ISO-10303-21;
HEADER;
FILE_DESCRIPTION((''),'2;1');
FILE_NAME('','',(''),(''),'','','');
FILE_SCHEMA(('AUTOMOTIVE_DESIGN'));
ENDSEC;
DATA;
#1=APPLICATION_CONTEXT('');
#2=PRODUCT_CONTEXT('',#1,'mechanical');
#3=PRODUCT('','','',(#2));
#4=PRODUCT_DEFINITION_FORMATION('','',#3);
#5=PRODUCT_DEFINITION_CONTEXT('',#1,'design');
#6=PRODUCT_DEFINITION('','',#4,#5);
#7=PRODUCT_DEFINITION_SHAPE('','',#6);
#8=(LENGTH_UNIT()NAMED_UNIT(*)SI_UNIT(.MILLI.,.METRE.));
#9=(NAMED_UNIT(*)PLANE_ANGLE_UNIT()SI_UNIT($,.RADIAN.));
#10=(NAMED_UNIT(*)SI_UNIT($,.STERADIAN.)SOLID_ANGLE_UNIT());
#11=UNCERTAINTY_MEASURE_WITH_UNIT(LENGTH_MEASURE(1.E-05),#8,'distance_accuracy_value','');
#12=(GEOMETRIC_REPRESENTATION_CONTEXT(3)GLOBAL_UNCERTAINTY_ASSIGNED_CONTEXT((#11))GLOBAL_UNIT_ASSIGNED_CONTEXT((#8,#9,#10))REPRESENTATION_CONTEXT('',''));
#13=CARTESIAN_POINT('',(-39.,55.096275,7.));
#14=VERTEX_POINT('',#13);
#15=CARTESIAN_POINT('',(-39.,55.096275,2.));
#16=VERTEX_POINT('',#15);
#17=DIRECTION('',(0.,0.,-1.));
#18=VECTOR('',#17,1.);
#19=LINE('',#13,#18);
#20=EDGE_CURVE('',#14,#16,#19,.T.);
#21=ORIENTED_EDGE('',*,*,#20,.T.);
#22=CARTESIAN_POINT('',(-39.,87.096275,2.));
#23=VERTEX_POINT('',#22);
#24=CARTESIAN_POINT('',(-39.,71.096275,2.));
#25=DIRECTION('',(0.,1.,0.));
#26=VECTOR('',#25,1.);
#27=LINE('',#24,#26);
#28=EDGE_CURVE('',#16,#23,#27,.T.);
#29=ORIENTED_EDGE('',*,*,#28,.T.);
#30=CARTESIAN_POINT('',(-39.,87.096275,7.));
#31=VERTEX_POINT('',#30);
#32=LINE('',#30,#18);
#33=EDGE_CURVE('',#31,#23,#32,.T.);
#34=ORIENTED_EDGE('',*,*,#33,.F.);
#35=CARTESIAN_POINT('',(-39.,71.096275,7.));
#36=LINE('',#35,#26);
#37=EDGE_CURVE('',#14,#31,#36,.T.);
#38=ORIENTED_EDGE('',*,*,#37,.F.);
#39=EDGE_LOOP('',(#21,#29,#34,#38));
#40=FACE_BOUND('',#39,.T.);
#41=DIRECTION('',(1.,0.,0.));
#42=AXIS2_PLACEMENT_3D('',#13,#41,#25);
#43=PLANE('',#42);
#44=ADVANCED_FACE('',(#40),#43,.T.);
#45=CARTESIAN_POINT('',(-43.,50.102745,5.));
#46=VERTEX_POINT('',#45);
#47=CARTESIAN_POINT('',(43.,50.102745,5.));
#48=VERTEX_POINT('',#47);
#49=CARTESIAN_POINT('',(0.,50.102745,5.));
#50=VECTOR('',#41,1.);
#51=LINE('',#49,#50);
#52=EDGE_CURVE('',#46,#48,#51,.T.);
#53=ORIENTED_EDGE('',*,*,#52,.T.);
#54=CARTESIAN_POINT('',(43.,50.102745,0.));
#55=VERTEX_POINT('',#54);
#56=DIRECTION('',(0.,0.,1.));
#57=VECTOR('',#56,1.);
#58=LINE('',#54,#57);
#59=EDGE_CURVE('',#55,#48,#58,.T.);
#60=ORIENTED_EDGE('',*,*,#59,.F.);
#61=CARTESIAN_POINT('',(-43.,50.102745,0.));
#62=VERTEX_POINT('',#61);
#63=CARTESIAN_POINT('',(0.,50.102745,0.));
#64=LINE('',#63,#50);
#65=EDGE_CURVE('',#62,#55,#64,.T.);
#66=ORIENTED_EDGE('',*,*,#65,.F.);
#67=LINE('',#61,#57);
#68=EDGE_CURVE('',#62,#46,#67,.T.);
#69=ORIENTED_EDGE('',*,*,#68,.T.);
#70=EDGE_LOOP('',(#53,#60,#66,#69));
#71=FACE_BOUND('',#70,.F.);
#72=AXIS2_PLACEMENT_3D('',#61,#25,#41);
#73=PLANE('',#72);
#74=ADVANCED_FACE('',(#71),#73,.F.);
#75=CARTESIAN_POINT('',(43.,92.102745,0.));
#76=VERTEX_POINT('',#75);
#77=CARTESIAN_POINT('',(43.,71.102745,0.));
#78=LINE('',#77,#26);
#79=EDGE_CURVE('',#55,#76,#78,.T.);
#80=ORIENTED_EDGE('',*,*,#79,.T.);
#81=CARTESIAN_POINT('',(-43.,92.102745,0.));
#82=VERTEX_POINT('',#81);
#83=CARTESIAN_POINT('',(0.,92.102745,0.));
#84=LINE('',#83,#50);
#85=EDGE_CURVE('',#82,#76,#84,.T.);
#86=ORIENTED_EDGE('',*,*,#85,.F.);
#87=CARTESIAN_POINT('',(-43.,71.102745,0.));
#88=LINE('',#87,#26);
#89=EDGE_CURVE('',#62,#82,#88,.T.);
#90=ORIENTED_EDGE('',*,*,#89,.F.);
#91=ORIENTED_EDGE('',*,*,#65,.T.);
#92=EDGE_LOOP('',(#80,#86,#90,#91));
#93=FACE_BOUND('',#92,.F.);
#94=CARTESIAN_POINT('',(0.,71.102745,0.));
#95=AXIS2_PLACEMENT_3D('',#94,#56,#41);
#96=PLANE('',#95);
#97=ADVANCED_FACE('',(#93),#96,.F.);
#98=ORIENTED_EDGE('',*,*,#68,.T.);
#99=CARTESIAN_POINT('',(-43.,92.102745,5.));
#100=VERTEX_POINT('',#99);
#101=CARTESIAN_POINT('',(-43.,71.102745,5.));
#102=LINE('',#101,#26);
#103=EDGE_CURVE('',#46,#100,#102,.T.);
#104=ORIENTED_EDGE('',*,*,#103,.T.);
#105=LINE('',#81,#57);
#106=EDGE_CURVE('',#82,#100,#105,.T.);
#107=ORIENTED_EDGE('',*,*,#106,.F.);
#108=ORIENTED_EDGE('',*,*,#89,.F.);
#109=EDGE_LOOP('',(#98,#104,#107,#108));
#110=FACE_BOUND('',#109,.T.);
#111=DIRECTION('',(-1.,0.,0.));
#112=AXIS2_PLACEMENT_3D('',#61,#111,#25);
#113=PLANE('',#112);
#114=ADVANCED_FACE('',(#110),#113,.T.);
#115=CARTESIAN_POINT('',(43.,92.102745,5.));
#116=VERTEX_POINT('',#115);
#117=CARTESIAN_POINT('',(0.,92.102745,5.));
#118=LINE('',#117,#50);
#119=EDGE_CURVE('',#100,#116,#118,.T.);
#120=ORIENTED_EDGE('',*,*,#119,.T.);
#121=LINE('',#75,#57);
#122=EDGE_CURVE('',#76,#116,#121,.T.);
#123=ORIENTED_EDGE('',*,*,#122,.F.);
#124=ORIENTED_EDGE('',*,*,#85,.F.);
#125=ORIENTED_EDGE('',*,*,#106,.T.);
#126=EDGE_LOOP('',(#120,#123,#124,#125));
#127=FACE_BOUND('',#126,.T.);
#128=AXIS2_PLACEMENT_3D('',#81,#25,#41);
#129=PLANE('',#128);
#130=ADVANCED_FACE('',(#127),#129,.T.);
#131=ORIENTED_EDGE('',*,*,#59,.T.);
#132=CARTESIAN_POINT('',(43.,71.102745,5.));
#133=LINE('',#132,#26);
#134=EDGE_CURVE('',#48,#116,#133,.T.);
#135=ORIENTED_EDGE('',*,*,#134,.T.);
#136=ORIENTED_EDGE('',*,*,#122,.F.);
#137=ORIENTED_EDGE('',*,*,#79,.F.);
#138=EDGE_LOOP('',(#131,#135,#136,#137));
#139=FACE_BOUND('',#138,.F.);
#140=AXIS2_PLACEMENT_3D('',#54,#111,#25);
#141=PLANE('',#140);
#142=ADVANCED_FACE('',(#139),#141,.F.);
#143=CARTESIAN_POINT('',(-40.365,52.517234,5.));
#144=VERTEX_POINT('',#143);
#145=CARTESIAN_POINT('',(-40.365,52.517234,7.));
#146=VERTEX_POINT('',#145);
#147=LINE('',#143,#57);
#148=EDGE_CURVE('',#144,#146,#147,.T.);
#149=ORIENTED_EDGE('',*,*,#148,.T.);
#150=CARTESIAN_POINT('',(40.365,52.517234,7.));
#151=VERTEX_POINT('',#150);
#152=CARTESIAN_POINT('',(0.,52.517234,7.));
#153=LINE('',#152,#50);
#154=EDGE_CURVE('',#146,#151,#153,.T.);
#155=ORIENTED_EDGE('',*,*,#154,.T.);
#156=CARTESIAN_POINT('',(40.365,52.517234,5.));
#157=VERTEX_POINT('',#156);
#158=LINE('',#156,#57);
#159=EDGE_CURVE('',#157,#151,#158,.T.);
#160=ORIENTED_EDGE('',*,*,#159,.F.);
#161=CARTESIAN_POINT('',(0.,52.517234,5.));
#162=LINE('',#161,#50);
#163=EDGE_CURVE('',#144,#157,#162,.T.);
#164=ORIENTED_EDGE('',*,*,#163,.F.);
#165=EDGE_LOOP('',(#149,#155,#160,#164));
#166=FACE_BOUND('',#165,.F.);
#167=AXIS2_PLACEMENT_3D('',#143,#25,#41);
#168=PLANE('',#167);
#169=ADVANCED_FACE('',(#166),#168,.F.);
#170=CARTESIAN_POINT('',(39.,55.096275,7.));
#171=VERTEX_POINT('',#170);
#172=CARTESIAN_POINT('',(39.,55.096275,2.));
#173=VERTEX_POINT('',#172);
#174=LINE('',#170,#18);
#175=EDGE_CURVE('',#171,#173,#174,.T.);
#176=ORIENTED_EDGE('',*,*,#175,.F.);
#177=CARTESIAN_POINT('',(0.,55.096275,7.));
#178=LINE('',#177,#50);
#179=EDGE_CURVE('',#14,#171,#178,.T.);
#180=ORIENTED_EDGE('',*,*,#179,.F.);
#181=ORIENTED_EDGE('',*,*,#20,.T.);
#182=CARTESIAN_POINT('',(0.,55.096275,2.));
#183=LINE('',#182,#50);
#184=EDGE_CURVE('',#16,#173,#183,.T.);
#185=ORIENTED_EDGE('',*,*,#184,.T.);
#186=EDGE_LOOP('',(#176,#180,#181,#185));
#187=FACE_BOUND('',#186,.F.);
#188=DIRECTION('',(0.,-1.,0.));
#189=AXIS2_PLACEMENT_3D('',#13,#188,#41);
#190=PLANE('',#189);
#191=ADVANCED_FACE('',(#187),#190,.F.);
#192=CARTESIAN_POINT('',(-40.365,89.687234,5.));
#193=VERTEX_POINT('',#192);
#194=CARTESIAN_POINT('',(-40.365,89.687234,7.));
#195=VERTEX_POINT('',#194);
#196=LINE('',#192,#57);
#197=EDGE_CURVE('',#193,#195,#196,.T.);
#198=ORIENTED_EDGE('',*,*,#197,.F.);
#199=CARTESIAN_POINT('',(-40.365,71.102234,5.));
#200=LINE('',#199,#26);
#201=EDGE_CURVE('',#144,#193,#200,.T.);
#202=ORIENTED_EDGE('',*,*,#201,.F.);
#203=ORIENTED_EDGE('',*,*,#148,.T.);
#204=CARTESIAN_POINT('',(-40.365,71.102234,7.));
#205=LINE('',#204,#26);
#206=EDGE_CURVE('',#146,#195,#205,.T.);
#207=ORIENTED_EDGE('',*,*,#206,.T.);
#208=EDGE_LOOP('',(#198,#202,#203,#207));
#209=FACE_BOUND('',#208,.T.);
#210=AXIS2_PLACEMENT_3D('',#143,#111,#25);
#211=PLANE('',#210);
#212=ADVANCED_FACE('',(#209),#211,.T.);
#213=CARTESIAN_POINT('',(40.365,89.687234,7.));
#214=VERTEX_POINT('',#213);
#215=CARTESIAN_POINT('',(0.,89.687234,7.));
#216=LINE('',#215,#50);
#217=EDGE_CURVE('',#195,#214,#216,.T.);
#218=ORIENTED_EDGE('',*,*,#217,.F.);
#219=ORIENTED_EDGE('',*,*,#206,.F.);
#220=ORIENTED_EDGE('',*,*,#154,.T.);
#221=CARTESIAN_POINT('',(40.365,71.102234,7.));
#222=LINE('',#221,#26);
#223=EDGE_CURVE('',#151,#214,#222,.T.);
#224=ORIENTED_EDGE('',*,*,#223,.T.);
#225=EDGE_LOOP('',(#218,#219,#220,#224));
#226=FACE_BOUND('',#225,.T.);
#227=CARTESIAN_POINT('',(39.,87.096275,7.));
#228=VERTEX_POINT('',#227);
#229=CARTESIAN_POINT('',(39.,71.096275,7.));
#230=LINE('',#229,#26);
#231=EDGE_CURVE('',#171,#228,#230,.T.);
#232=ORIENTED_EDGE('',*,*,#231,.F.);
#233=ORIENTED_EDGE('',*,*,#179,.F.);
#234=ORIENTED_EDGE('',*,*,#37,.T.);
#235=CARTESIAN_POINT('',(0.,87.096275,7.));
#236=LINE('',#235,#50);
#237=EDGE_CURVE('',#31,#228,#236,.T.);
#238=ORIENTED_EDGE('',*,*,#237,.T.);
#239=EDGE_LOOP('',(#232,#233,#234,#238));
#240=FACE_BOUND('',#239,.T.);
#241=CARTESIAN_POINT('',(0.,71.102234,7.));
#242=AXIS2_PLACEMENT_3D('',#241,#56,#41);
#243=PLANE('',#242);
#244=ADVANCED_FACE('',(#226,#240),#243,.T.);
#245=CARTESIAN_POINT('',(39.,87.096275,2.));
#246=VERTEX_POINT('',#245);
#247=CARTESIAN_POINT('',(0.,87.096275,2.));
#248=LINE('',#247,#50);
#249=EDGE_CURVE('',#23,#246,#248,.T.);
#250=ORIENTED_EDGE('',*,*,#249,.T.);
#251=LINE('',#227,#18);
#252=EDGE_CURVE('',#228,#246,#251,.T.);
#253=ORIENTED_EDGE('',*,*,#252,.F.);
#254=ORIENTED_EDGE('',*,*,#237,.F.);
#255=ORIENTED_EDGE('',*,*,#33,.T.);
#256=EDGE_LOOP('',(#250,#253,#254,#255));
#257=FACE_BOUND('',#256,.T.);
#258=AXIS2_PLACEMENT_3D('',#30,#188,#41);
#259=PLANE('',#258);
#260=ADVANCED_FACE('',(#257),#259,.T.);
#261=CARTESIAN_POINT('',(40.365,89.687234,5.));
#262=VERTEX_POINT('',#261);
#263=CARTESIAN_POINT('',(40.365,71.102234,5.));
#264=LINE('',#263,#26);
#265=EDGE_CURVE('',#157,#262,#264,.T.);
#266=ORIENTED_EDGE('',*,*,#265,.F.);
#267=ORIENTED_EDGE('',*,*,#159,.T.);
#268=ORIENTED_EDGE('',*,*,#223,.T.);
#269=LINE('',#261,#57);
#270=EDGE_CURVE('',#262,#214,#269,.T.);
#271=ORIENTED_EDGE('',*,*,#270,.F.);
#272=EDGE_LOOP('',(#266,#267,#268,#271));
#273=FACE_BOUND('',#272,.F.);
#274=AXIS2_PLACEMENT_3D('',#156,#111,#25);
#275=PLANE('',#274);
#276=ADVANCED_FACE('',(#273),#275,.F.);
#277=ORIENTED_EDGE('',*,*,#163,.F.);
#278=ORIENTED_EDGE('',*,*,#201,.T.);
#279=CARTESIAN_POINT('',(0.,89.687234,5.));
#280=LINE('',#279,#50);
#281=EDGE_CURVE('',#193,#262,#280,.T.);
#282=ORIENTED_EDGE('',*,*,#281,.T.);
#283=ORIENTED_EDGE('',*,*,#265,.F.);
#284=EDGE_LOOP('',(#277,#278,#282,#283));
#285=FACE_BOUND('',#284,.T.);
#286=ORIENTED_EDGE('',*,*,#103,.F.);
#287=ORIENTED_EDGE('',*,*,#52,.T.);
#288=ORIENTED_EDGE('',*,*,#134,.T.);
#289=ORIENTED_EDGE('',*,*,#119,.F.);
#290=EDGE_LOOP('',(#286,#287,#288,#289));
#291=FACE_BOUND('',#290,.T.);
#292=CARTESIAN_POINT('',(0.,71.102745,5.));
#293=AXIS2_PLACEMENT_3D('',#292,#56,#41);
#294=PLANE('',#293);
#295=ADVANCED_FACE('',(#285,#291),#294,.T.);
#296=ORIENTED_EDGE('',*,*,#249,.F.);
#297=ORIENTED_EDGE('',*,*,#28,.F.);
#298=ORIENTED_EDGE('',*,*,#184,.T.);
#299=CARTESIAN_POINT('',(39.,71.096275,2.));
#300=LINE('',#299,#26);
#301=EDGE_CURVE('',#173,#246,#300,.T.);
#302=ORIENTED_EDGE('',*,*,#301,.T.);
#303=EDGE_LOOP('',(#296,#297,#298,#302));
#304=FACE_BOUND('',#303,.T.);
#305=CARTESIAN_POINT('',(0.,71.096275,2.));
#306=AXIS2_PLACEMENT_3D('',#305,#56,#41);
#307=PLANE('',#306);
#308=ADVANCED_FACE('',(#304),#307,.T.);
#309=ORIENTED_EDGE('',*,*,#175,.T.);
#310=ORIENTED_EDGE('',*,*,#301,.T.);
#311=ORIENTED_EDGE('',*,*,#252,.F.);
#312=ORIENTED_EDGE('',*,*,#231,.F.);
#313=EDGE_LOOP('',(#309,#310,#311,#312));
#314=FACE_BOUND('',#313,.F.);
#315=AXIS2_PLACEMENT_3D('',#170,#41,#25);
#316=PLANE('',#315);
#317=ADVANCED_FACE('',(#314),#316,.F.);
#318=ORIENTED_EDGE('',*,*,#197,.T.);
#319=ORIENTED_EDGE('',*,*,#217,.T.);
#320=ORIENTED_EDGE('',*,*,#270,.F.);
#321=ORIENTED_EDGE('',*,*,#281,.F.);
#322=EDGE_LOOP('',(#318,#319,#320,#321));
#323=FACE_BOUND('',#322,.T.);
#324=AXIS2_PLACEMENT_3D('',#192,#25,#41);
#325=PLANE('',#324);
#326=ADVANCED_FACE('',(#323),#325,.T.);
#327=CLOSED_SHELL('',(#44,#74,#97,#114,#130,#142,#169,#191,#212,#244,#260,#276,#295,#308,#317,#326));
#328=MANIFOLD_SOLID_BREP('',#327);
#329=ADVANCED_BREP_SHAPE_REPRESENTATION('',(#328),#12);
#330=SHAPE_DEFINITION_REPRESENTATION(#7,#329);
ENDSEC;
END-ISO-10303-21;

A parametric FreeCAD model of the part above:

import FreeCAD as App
import Part
import Sketcher
from FreeCAD import Vector


def add_polygon(sketch, points):
    """Adds a closed chain of lines whose ends are joined by coincident constraints."""
    first, n = sketch.GeometryCount, len(points)
    for a, b in zip(points, points[1:] + points[:1]):
        sketch.addGeometry(Part.LineSegment(App.Vector(*a, 0), App.Vector(*b, 0)), False)
    for i in range(n):
        sketch.addConstraint(Sketcher.Constraint("Coincident", first + i, 2, first + (i + 1) % n, 1))

doc = App.newDocument("Part")
params = doc.addObject("Spreadsheet::Sheet", "Params")
for row, (alias, value) in enumerate([
    ("sketch1_width", "86 mm"),
    ("sketch1_height", "42 mm"),
    ("pad1_length", "5 mm"),
    ("sketch2_width", "80.73 mm"),
    ("sketch2_height", "37.17 mm"),
    ("pad2_length", "2 mm"),
    ("sketch3_width", "78 mm"),
    ("sketch3_height", "32 mm"),
    ("pocket1_length", "5 mm"),
], start=1):
    params.set(f"A{row}", alias)
    params.set(f"B{row}", "=" + value)
    params.setAlias(f"B{row}", alias)

body = doc.addObject("PartDesign::Body", "Body")

sketch1 = doc.addObject("Sketcher::SketchObject", "Sketch")
body.addObject(sketch1)
sketch1.AttachmentSupport = (doc.XY_Plane, [""])
sketch1.MapMode = "FlatFace"
add_polygon(sketch1, [(-43, 92), (-43, 50), (43, 50), (43, 92)])
sketch1.addConstraint([
    Sketcher.Constraint("Vertical", 0),
    Sketcher.Constraint("Horizontal", 1),
    Sketcher.Constraint("Vertical", 2),
    Sketcher.Constraint("Horizontal", 3),
    Sketcher.Constraint("DistanceX", 1, 1, 1, 2, 86.0),
    Sketcher.Constraint("DistanceY", 0, 2, 0, 1, 42.0),
    Sketcher.Constraint("DistanceX", 0, 2, -1, 1, 43.0),
    Sketcher.Constraint("DistanceY", -1, 1, 0, 2, 50.102745),
])
sketch1.setExpression("Constraints[8]", "Params.sketch1_width")
sketch1.setExpression("Constraints[9]", "Params.sketch1_height")
pad1 = doc.addObject("PartDesign::Pad", "Pad")
body.addObject(pad1)
pad1.Profile = sketch1
pad1.setExpression("Length", "Params.pad1_length")

sketch2 = doc.addObject("Sketcher::SketchObject", "Sketch001")
body.addObject(sketch2)
sketch2.AttachmentSupport = (doc.XY_Plane, [""])
sketch2.MapMode = "FlatFace"
sketch2.AttachmentOffset = App.Placement(Vector(0, 0, 5), App.Rotation())
add_polygon(sketch2, [(-40, 90), (-40, 53), (40, 53), (40, 90)])
sketch2.addConstraint([
    Sketcher.Constraint("Vertical", 0),
    Sketcher.Constraint("Horizontal", 1),
    Sketcher.Constraint("Vertical", 2),
    Sketcher.Constraint("Horizontal", 3),
    Sketcher.Constraint("DistanceX", 1, 1, 1, 2, 80.73),
    Sketcher.Constraint("DistanceY", 0, 2, 0, 1, 37.17),
    Sketcher.Constraint("DistanceX", 0, 2, -1, 1, 40.365),
    Sketcher.Constraint("DistanceY", -1, 1, 0, 2, 52.517234),
])
sketch2.setExpression("Constraints[8]", "Params.sketch2_width")
sketch2.setExpression("Constraints[9]", "Params.sketch2_height")
pad2 = doc.addObject("PartDesign::Pad", "Pad001")
body.addObject(pad2)
pad2.Profile = sketch2
pad2.setExpression("Length", "Params.pad2_length")

sketch3 = doc.addObject("Sketcher::SketchObject", "Sketch002")
body.addObject(sketch3)
sketch3.AttachmentSupport = (doc.XY_Plane, [""])
sketch3.MapMode = "FlatFace"
sketch3.AttachmentOffset = App.Placement(Vector(0, 0, 7), App.Rotation())
add_polygon(sketch3, [(-39, 87), (-39, 55), (39, 55), (39, 87)])
sketch3.addConstraint([
    Sketcher.Constraint("Vertical", 0),
    Sketcher.Constraint("Horizontal", 1),
    Sketcher.Constraint("Vertical", 2),
    Sketcher.Constraint("Horizontal", 3),
    Sketcher.Constraint("DistanceX", 1, 1, 1, 2, 78.0),
    Sketcher.Constraint("DistanceY", 0, 2, 0, 1, 32.0),
    Sketcher.Constraint("DistanceX", 0, 2, -1, 1, 39.0),
    Sketcher.Constraint("DistanceY", -1, 1, 0, 2, 55.096275),
])
sketch3.setExpression("Constraints[8]", "Params.sketch3_width")
sketch3.setExpression("Constraints[9]", "Params.sketch3_height")
pocket1 = doc.addObject("PartDesign::Pocket", "Pocket")
body.addObject(pocket1)
pocket1.Profile = sketch3
pocket1.setExpression("Length", "Params.pocket1_length")

doc.recompute()
